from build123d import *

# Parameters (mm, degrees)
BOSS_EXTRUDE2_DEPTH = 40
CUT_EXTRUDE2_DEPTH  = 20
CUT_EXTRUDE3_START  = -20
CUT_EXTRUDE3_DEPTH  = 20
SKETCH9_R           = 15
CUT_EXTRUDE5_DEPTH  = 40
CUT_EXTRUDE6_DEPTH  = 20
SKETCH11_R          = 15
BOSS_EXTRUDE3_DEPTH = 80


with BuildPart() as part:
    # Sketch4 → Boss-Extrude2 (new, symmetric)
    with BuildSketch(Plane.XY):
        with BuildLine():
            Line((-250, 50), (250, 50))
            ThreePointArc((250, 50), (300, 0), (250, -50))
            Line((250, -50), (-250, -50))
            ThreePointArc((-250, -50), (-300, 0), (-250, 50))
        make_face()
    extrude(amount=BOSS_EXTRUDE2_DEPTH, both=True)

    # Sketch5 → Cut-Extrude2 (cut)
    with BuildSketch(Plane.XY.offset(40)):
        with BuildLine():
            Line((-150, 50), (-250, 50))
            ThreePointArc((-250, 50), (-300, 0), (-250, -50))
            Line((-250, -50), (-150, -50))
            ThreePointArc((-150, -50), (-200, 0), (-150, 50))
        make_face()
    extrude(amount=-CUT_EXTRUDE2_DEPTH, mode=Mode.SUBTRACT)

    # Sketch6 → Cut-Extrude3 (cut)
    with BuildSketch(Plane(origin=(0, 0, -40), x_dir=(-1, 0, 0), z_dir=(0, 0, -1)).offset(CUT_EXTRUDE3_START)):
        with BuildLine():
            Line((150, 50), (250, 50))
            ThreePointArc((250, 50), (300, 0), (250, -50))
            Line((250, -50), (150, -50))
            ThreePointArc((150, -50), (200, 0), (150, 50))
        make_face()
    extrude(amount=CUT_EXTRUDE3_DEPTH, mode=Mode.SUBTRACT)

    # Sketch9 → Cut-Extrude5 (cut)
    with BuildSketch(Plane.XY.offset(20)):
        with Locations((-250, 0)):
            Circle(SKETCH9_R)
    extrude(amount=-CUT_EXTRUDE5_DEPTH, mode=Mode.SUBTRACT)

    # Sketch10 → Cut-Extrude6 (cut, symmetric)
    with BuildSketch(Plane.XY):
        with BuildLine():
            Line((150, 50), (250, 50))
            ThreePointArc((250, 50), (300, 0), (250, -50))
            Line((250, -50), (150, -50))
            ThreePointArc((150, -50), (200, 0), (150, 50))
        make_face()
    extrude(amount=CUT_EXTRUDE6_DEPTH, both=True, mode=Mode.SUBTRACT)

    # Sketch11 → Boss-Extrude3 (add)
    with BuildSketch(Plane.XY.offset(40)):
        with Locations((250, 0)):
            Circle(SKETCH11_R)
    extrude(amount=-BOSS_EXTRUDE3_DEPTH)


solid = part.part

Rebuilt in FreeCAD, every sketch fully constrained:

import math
import FreeCAD as App
import Part
import Sketcher

V = App.Vector

doc = App.newDocument("Part")
params = doc.addObject("Spreadsheet::Sheet", "Params")
for row, (alias, value) in enumerate([
    ("sketch1_radius", "50 mm"),
    ("sketch1_width", "500 mm"),
    ("pad1_length", "80 mm"),
    ("sketch2_radius", "50 mm"),
    ("sketch2_width", "100 mm"),
    ("pocket1_length", "20 mm"),
    ("sketch3_radius", "50 mm"),
    ("sketch3_width", "100 mm"),
    ("pocket2_length", "20 mm"),
    ("sketch4_diameter", "30 mm"),
    ("pocket3_length", "40 mm"),
    ("sketch5_radius", "50 mm"),
    ("sketch5_width", "100 mm"),
    ("pocket4_length", "40 mm"),
    ("sketch6_diameter", "30 mm"),
    ("pad2_length", "80 mm"),
], start=1):
    params.set(f"A{row}", alias)
    params.set(f"B{row}", "=" + value)
    params.setAlias(f"B{row}", alias)

body = doc.addObject("PartDesign::Body", "Body")

# Sketch on XY plane
sketch1 = body.newObject("Sketcher::SketchObject", "Sketch")
sketch1.AttachmentSupport = (doc.getObject("XY_Plane"), [""])
sketch1.MapMode = "FlatFace"
sketch1.addGeometry([
    Part.LineSegment(V(250, 50, 0), V(-250, 50, 0)),
    Part.ArcOfCircle(Part.Circle(V(-250, 0, 0), V(0, 0, 1), 50), math.radians(90), math.radians(270)),
    Part.LineSegment(V(-250, -50, 0), V(250, -50, 0)),
    Part.ArcOfCircle(Part.Circle(V(250, 0, 0), V(0, 0, 1), 50), math.radians(-90), math.radians(90)),
], False)
sketch1.addConstraint([
    Sketcher.Constraint("Tangent", 0, 2, 1, 1),
    Sketcher.Constraint("Tangent", 1, 2, 2, 1),
    Sketcher.Constraint("Tangent", 2, 2, 3, 1),
    Sketcher.Constraint("Tangent", 3, 2, 0, 1),
    Sketcher.Constraint("Horizontal", 0),
    Sketcher.Constraint("Horizontal", 2),
    Sketcher.Constraint("Symmetric", 1, 3, 3, 3, -1, 1),
    Sketcher.Constraint("Radius", 1, 50.0),
    Sketcher.Constraint("DistanceX", 0, 2, 0, 1, 500.0),
])
sketch1.setExpression("Constraints[7]", "Params.sketch1_radius")
sketch1.setExpression("Constraints[8]", "Params.sketch1_width")
pad1 = body.newObject("PartDesign::Pad", "Pad")
pad1.Profile = sketch1
pad1.setExpression("Length", "Params.pad1_length")
pad1.Midplane = True

# Sketch on XY plane
sketch2 = body.newObject("Sketcher::SketchObject", "Sketch001")
sketch2.AttachmentSupport = (doc.getObject("XY_Plane"), [""])
sketch2.MapMode = "FlatFace"
sketch2.AttachmentOffset = App.Placement(V(0, 0, 40), App.Rotation())
sketch2.addGeometry([
    Part.LineSegment(V(-150, 50, 0), V(-250, 50, 0)),
    Part.ArcOfCircle(Part.Circle(V(-250, 0, 0), V(0, 0, 1), 50), math.radians(90), math.radians(270)),
    Part.LineSegment(V(-250, -50, 0), V(-150, -50, 0)),
    Part.ArcOfCircle(Part.Circle(V(-150, 0, 0), V(0, 0, 1), 50), math.radians(90), math.radians(270)),
], False)
sketch2.addConstraint([
    Sketcher.Constraint("Tangent", 0, 2, 1, 1),
    Sketcher.Constraint("Tangent", 1, 2, 2, 1),
    Sketcher.Constraint("Tangent", 2, 2, 3, 2),
    Sketcher.Constraint("Tangent", 3, 1, 0, 1),
    Sketcher.Constraint("Horizontal", 0),
    Sketcher.Constraint("Horizontal", 2),
    Sketcher.Constraint("PointOnObject", 1, 3, -1),
    Sketcher.Constraint("Radius", 1, 50.0),
    Sketcher.Constraint("DistanceX", 0, 2, 0, 1, 100.0),
    Sketcher.Constraint("DistanceX", 1, 3, -1, 1, 250.0),
])
sketch2.setExpression("Constraints[7]", "Params.sketch2_radius")
sketch2.setExpression("Constraints[8]", "Params.sketch2_width")
pocket1 = body.newObject("PartDesign::Pocket", "Pocket")
pocket1.Profile = sketch2
pocket1.setExpression("Length", "Params.pocket1_length")

# Sketch on XY plane
sketch3 = body.newObject("Sketcher::SketchObject", "Sketch002")
sketch3.AttachmentSupport = (doc.getObject("XY_Plane"), [""])
sketch3.MapMode = "FlatFace"
sketch3.AttachmentOffset = App.Placement(V(0, 0, -20), App.Rotation())
sketch3.addGeometry([
    Part.LineSegment(V(-250, 50, 0), V(-150, 50, 0)),
    Part.ArcOfCircle(Part.Circle(V(-150, 0, 0), V(0, 0, 1), 50), math.radians(90), math.radians(270)),
    Part.LineSegment(V(-150, -50, 0), V(-250, -50, 0)),
    Part.ArcOfCircle(Part.Circle(V(-250, 0, 0), V(0, 0, 1), 50), math.radians(90), math.radians(270)),
], False)
sketch3.addConstraint([
    Sketcher.Constraint("Tangent", 0, 2, 1, 1),
    Sketcher.Constraint("Tangent", 1, 2, 2, 1),
    Sketcher.Constraint("Tangent", 2, 2, 3, 2),
    Sketcher.Constraint("Tangent", 3, 1, 0, 1),
    Sketcher.Constraint("Horizontal", 0),
    Sketcher.Constraint("Horizontal", 2),
    Sketcher.Constraint("PointOnObject", 1, 3, -1),
    Sketcher.Constraint("Radius", 1, 50.0),
    Sketcher.Constraint("DistanceX", 0, 1, 0, 2, 100.0),
    Sketcher.Constraint("DistanceX", 1, 3, -1, 1, 150.0),
])
sketch3.setExpression("Constraints[7]", "Params.sketch3_radius")
sketch3.setExpression("Constraints[8]", "Params.sketch3_width")
pocket2 = body.newObject("PartDesign::Pocket", "Pocket001")
pocket2.Profile = sketch3
pocket2.setExpression("Length", "Params.pocket2_length")

# Sketch on XY plane
sketch4 = body.newObject("Sketcher::SketchObject", "Sketch003")
sketch4.AttachmentSupport = (doc.getObject("XY_Plane"), [""])
sketch4.MapMode = "FlatFace"
sketch4.AttachmentOffset = App.Placement(V(0, 0, 20), App.Rotation())
sketch4.addGeometry(Part.Circle(V(-250, 0, 0), V(0, 0, 1), 15), False)
sketch4.addConstraint([
    Sketcher.Constraint("PointOnObject", 0, 3, -1),
    Sketcher.Constraint("Diameter", 0, 30.0),
    Sketcher.Constraint("DistanceX", 0, 3, -1, 1, 250.0),
])
sketch4.setExpression("Constraints[1]", "Params.sketch4_diameter")
pocket3 = body.newObject("PartDesign::Pocket", "Pocket002")
pocket3.Profile = sketch4
pocket3.setExpression("Length", "Params.pocket3_length")

# Sketch on XY plane
sketch5 = body.newObject("Sketcher::SketchObject", "Sketch004")
sketch5.AttachmentSupport = (doc.getObject("XY_Plane"), [""])
sketch5.MapMode = "FlatFace"
sketch5.addGeometry([
    Part.LineSegment(V(250, 50, 0), V(150, 50, 0)),
    Part.ArcOfCircle(Part.Circle(V(150, 0, 0), V(0, 0, 1), 50), math.radians(-90), math.radians(90)),
    Part.LineSegment(V(150, -50, 0), V(250, -50, 0)),
    Part.ArcOfCircle(Part.Circle(V(250, 0, 0), V(0, 0, 1), 50), math.radians(-90), math.radians(90)),
], False)
sketch5.addConstraint([
    Sketcher.Constraint("Tangent", 0, 2, 1, 2),
    Sketcher.Constraint("Tangent", 1, 1, 2, 1),
    Sketcher.Constraint("Tangent", 2, 2, 3, 1),
    Sketcher.Constraint("Tangent", 3, 2, 0, 1),
    Sketcher.Constraint("Horizontal", 0),
    Sketcher.Constraint("Horizontal", 2),
    Sketcher.Constraint("PointOnObject", 1, 3, -1),
    Sketcher.Constraint("Radius", 1, 50.0),
    Sketcher.Constraint("DistanceX", 0, 2, 0, 1, 100.0),
    Sketcher.Constraint("DistanceX", -1, 1, 1, 3, 150.0),
])
sketch5.setExpression("Constraints[7]", "Params.sketch5_radius")
sketch5.setExpression("Constraints[8]", "Params.sketch5_width")
pocket4 = body.newObject("PartDesign::Pocket", "Pocket003")
pocket4.Profile = sketch5
pocket4.setExpression("Length", "Params.pocket4_length")
pocket4.Midplane = True

# Sketch on XY plane
sketch6 = body.newObject("Sketcher::SketchObject", "Sketch005")
sketch6.AttachmentSupport = (doc.getObject("XY_Plane"), [""])
sketch6.MapMode = "FlatFace"
sketch6.AttachmentOffset = App.Placement(V(0, 0, 40), App.Rotation())
sketch6.addGeometry(Part.Circle(V(250, 0, 0), V(0, 0, 1), 15), False)
sketch6.addConstraint([
    Sketcher.Constraint("PointOnObject", 0, 3, -1),
    Sketcher.Constraint("Diameter", 0, 30.0),
    Sketcher.Constraint("DistanceX", -1, 1, 0, 3, 250.0),
])
sketch6.setExpression("Constraints[1]", "Params.sketch6_diameter")
pad2 = body.newObject("PartDesign::Pad", "Pad001")
pad2.Profile = sketch6
pad2.setExpression("Length", "Params.pad2_length")
pad2.Reversed = True

doc.recompute()
